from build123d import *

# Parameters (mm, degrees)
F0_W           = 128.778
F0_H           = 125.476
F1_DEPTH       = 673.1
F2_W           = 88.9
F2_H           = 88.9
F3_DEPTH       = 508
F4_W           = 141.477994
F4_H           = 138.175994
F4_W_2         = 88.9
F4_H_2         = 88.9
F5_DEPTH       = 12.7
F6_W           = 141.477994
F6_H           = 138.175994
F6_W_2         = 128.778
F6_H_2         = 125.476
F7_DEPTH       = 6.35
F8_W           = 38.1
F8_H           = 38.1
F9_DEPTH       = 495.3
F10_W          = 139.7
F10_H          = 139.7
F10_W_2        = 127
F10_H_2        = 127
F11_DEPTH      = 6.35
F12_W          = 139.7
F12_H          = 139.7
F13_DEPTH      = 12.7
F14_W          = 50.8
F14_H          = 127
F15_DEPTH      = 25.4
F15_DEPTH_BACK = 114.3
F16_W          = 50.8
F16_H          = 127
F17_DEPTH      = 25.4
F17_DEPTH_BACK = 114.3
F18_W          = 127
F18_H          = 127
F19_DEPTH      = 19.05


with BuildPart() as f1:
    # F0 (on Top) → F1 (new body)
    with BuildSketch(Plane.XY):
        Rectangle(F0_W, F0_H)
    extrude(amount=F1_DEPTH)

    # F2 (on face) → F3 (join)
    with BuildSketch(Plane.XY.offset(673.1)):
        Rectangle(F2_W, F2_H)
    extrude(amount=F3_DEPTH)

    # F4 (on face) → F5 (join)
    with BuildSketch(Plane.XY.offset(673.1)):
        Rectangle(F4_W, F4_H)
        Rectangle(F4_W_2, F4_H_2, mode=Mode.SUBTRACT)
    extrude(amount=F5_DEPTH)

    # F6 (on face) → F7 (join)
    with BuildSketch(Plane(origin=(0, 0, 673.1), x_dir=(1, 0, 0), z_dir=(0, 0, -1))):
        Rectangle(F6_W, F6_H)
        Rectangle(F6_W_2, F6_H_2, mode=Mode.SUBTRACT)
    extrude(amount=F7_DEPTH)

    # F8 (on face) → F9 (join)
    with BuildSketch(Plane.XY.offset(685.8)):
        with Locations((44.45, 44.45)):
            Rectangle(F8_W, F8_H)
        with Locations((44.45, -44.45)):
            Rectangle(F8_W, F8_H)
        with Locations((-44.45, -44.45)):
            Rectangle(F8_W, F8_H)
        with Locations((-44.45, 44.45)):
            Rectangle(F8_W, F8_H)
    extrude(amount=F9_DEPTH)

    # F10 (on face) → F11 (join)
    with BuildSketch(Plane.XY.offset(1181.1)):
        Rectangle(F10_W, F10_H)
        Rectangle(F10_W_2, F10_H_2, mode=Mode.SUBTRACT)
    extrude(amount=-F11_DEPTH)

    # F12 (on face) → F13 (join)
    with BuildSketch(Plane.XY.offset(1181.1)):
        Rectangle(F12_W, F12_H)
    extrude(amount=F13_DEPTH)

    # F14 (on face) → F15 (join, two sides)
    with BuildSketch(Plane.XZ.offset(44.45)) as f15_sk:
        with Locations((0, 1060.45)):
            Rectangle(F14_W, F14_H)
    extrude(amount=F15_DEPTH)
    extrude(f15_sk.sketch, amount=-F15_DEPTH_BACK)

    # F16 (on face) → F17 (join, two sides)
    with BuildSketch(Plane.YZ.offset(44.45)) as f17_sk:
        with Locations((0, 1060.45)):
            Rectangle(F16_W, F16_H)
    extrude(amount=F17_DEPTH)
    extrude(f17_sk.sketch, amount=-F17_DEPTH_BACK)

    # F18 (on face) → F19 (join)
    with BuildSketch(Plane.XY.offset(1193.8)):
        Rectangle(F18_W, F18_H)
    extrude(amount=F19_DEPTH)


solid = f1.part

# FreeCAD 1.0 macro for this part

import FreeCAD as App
import Part
import Sketcher
Q = App.Units.Quantity

doc = App.newDocument("Part")
body = doc.addObject("PartDesign::Body", "Body")

# Sketch on XY plane
sketch1 = body.newObject("Sketcher::SketchObject", "Sketch")
sketch1.AttachmentSupport = (doc.getObject("XY_Plane"), [""])
sketch1.MapMode = "FlatFace"
sketch1.addGeometry([
    Part.LineSegment(App.Vector(-64, 63, 0), App.Vector(-64, -63, 0)),
    Part.LineSegment(App.Vector(-64, -63, 0), App.Vector(64, -63, 0)),
    Part.LineSegment(App.Vector(64, -63, 0), App.Vector(64, 63, 0)),
    Part.LineSegment(App.Vector(64, 63, 0), App.Vector(-64, 63, 0)),
], False)
sketch1.addConstraint([
    Sketcher.Constraint("Coincident", 0, 2, 1, 1),
    Sketcher.Constraint("Coincident", 1, 2, 2, 1),
    Sketcher.Constraint("Coincident", 2, 2, 3, 1),
    Sketcher.Constraint("Coincident", 3, 2, 0, 1),
    Sketcher.Constraint("Vertical", 0),
    Sketcher.Constraint("Horizontal", 1),
    Sketcher.Constraint("Vertical", 2),
    Sketcher.Constraint("Horizontal", 3),
    Sketcher.Constraint("Symmetric", 0, 2, 2, 2, -1, 1),
    Sketcher.Constraint("DistanceX", 1, 1, 1, 2, Q("5.07 in")),
    Sketcher.Constraint("DistanceY", 0, 2, 0, 1, Q("4.94 in")),
])
pad1 = body.newObject("PartDesign::Pad", "Pad")
pad1.Profile = sketch1
pad1.Length = Q("26.5 in")

# Sketch on XY plane
sketch2 = body.newObject("Sketcher::SketchObject", "Sketch001")
sketch2.AttachmentSupport = (doc.getObject("XY_Plane"), [""])
sketch2.MapMode = "FlatFace"
sketch2.AttachmentOffset = App.Placement(App.Vector(0, 0, 26.5 * 25.4), App.Rotation())
sketch2.addGeometry([
    Part.LineSegment(App.Vector(-44, 44, 0), App.Vector(-44, -44, 0)),
    Part.LineSegment(App.Vector(-44, -44, 0), App.Vector(44, -44, 0)),
    Part.LineSegment(App.Vector(44, -44, 0), App.Vector(44, 44, 0)),
    Part.LineSegment(App.Vector(44, 44, 0), App.Vector(-44, 44, 0)),
], False)
sketch2.addConstraint([
    Sketcher.Constraint("Coincident", 0, 2, 1, 1),
    Sketcher.Constraint("Coincident", 1, 2, 2, 1),
    Sketcher.Constraint("Coincident", 2, 2, 3, 1),
    Sketcher.Constraint("Coincident", 3, 2, 0, 1),
    Sketcher.Constraint("Vertical", 0),
    Sketcher.Constraint("Horizontal", 1),
    Sketcher.Constraint("Vertical", 2),
    Sketcher.Constraint("Horizontal", 3),
    Sketcher.Constraint("Symmetric", 0, 2, 2, 2, -1, 1),
    Sketcher.Constraint("Equal", 3, 0),
    Sketcher.Constraint("DistanceX", 1, 1, 1, 2, Q("3.5 in")),
])
pad2 = body.newObject("PartDesign::Pad", "Pad001")
pad2.Profile = sketch2
pad2.Length = Q("20 in")

# Sketch on XY plane
sketch3 = body.newObject("Sketcher::SketchObject", "Sketch002")
sketch3.AttachmentSupport = (doc.getObject("XY_Plane"), [""])
sketch3.MapMode = "FlatFace"
sketch3.AttachmentOffset = App.Placement(App.Vector(0, 0, 26.5 * 25.4), App.Rotation())
sketch3.addGeometry([
    Part.LineSegment(App.Vector(-71, 69, 0), App.Vector(-71, -69, 0)),  # 0
    Part.LineSegment(App.Vector(-71, -69, 0), App.Vector(71, -69, 0)),  # 1
    Part.LineSegment(App.Vector(71, -69, 0), App.Vector(71, 69, 0)),  # 2
    Part.LineSegment(App.Vector(71, 69, 0), App.Vector(-71, 69, 0)),  # 3
    Part.LineSegment(App.Vector(44, -44, 0), App.Vector(-44, -44, 0)),  # 4
    Part.LineSegment(App.Vector(-44, -44, 0), App.Vector(-44, 44, 0)),  # 5
    Part.LineSegment(App.Vector(-44, 44, 0), App.Vector(44, 44, 0)),  # 6
    Part.LineSegment(App.Vector(44, 44, 0), App.Vector(44, -44, 0)),  # 7
], False)
sketch3.addConstraint([
    Sketcher.Constraint("Coincident", 0, 2, 1, 1),
    Sketcher.Constraint("Coincident", 1, 2, 2, 1),
    Sketcher.Constraint("Coincident", 2, 2, 3, 1),
    Sketcher.Constraint("Coincident", 3, 2, 0, 1),
    Sketcher.Constraint("Coincident", 4, 2, 5, 1),
    Sketcher.Constraint("Coincident", 5, 2, 6, 1),
    Sketcher.Constraint("Coincident", 6, 2, 7, 1),
    Sketcher.Constraint("Coincident", 7, 2, 4, 1),
    Sketcher.Constraint("Vertical", 0),
    Sketcher.Constraint("Horizontal", 1),
    Sketcher.Constraint("Vertical", 2),
    Sketcher.Constraint("Horizontal", 3),
    Sketcher.Constraint("Horizontal", 4),
    Sketcher.Constraint("Vertical", 5),
    Sketcher.Constraint("Horizontal", 6),
    Sketcher.Constraint("Vertical", 7),
    Sketcher.Constraint("Symmetric", 0, 2, 2, 2, -1, 1),
    Sketcher.Constraint("Symmetric", 4, 2, 6, 2, -1, 1),
    Sketcher.Constraint("Equal", 6, 5),
    Sketcher.Constraint("DistanceX", 4, 2, 4, 1, Q("3.5 in")),
    Sketcher.Constraint("DistanceY", 0, 2, -1, 1, Q("2.7199999 in")),
    Sketcher.Constraint("DistanceX", 0, 2, -1, 1, Q("2.7849999 in")),
])
pad3 = body.newObject("PartDesign::Pad", "Pad002")
pad3.Profile = sketch3
pad3.Length = Q("0.5 in")

# Sketch on XY plane
sketch4 = body.newObject("Sketcher::SketchObject", "Sketch003")
sketch4.AttachmentSupport = (doc.getObject("XY_Plane"), [""])
sketch4.MapMode = "FlatFace"
sketch4.AttachmentOffset = App.Placement(App.Vector(0, 0, 26.5 * 25.4), App.Rotation())
sketch4.addGeometry([
    Part.LineSegment(App.Vector(-71, -69, 0), App.Vector(-71, 69, 0)),  # 0
    Part.LineSegment(App.Vector(-71, 69, 0), App.Vector(71, 69, 0)),  # 1
    Part.LineSegment(App.Vector(71, 69, 0), App.Vector(71, -69, 0)),  # 2
    Part.LineSegment(App.Vector(71, -69, 0), App.Vector(-71, -69, 0)),  # 3
    Part.LineSegment(App.Vector(64, 63, 0), App.Vector(-64, 63, 0)),  # 4
    Part.LineSegment(App.Vector(-64, 63, 0), App.Vector(-64, -63, 0)),  # 5
    Part.LineSegment(App.Vector(-64, -63, 0), App.Vector(64, -63, 0)),  # 6
    Part.LineSegment(App.Vector(64, -63, 0), App.Vector(64, 63, 0)),  # 7
], False)
sketch4.addConstraint([
    Sketcher.Constraint("Coincident", 0, 2, 1, 1),
    Sketcher.Constraint("Coincident", 1, 2, 2, 1),
    Sketcher.Constraint("Coincident", 2, 2, 3, 1),
    Sketcher.Constraint("Coincident", 3, 2, 0, 1),
    Sketcher.Constraint("Coincident", 4, 2, 5, 1),
    Sketcher.Constraint("Coincident", 5, 2, 6, 1),
    Sketcher.Constraint("Coincident", 6, 2, 7, 1),
    Sketcher.Constraint("Coincident", 7, 2, 4, 1),
    Sketcher.Constraint("Vertical", 0),
    Sketcher.Constraint("Horizontal", 1),
    Sketcher.Constraint("Vertical", 2),
    Sketcher.Constraint("Horizontal", 3),
    Sketcher.Constraint("Horizontal", 4),
    Sketcher.Constraint("Vertical", 5),
    Sketcher.Constraint("Horizontal", 6),
    Sketcher.Constraint("Vertical", 7),
    Sketcher.Constraint("Symmetric", 0, 2, 2, 2, -1, 1),
    Sketcher.Constraint("Symmetric", 4, 2, 6, 2, -1, 1),
    Sketcher.Constraint("DistanceX", 4, 2, 4, 1, Q("5.07 in")),
    Sketcher.Constraint("DistanceY", 5, 2, 5, 1, Q("4.94 in")),
    Sketcher.Constraint("DistanceY", -1, 1, 0, 2, Q("2.7199999 in")),
    Sketcher.Constraint("DistanceX", 0, 2, 4, 2, Q("0.2499999 in")),
])
pad4 = body.newObject("PartDesign::Pad", "Pad003")
pad4.Profile = sketch4
pad4.Length = Q("0.25 in")
pad4.Reversed = True

# Sketch on XY plane
sketch5 = body.newObject("Sketcher::SketchObject", "Sketch004")
sketch5.AttachmentSupport = (doc.getObject("XY_Plane"), [""])
sketch5.MapMode = "FlatFace"
sketch5.AttachmentOffset = App.Placement(App.Vector(0, 0, 27 * 25.4), App.Rotation())
sketch5.addGeometry([
    Part.LineSegment(App.Vector(25, 64, 0), App.Vector(25, 25, 0)),  # 0
    Part.LineSegment(App.Vector(25, 25, 0), App.Vector(64, 25, 0)),  # 1
    Part.LineSegment(App.Vector(64, 25, 0), App.Vector(64, 64, 0)),  # 2
    Part.LineSegment(App.Vector(64, 64, 0), App.Vector(25, 64, 0)),  # 3
    Part.LineSegment(App.Vector(25, -25, 0), App.Vector(25, -64, 0)),  # 4
    Part.LineSegment(App.Vector(25, -64, 0), App.Vector(64, -64, 0)),  # 5
    Part.LineSegment(App.Vector(64, -64, 0), App.Vector(64, -25, 0)),  # 6
    Part.LineSegment(App.Vector(64, -25, 0), App.Vector(25, -25, 0)),  # 7
    Part.LineSegment(App.Vector(-64, -25, 0), App.Vector(-64, -64, 0)),  # 8
    Part.LineSegment(App.Vector(-64, -64, 0), App.Vector(-25, -64, 0)),  # 9
    Part.LineSegment(App.Vector(-25, -64, 0), App.Vector(-25, -25, 0)),  # 10
    Part.LineSegment(App.Vector(-25, -25, 0), App.Vector(-64, -25, 0)),  # 11
    Part.LineSegment(App.Vector(-64, 64, 0), App.Vector(-64, 25, 0)),  # 12
    Part.LineSegment(App.Vector(-64, 25, 0), App.Vector(-25, 25, 0)),  # 13
    Part.LineSegment(App.Vector(-25, 25, 0), App.Vector(-25, 64, 0)),  # 14
    Part.LineSegment(App.Vector(-25, 64, 0), App.Vector(-64, 64, 0)),  # 15
], False)
sketch5.addConstraint([
    Sketcher.Constraint("Coincident", 0, 2, 1, 1),
    Sketcher.Constraint("Coincident", 1, 2, 2, 1),
    Sketcher.Constraint("Coincident", 2, 2, 3, 1),
    Sketcher.Constraint("Coincident", 3, 2, 0, 1),
    Sketcher.Constraint("Coincident", 4, 2, 5, 1),
    Sketcher.Constraint("Coincident", 5, 2, 6, 1),
    Sketcher.Constraint("Coincident", 6, 2, 7, 1),
    Sketcher.Constraint("Coincident", 7, 2, 4, 1),
    Sketcher.Constraint("Coincident", 8, 2, 9, 1),
    Sketcher.Constraint("Coincident", 9, 2, 10, 1),
    Sketcher.Constraint("Coincident", 10, 2, 11, 1),
    Sketcher.Constraint("Coincident", 11, 2, 8, 1),
    Sketcher.Constraint("Coincident", 12, 2, 13, 1),
    Sketcher.Constraint("Coincident", 13, 2, 14, 1),
    Sketcher.Constraint("Coincident", 14, 2, 15, 1),
    Sketcher.Constraint("Coincident", 15, 2, 12, 1),
    Sketcher.Constraint("Vertical", 0),
    Sketcher.Constraint("Horizontal", 1),
    Sketcher.Constraint("Vertical", 2),
    Sketcher.Constraint("Horizontal", 3),
    Sketcher.Constraint("Vertical", 4),
    Sketcher.Constraint("Horizontal", 5),
    Sketcher.Constraint("Vertical", 6),
    Sketcher.Constraint("Horizontal", 7),
    Sketcher.Constraint("Vertical", 8),
    Sketcher.Constraint("Horizontal", 9),
    Sketcher.Constraint("Vertical", 10),
    Sketcher.Constraint("Horizontal", 11),
    Sketcher.Constraint("Vertical", 12),
    Sketcher.Constraint("Horizontal", 13),
    Sketcher.Constraint("Vertical", 14),
    Sketcher.Constraint("Horizontal", 15),
    Sketcher.Constraint("Symmetric", 2, 2, 8, 2, -1, 1),
    Sketcher.Constraint("Symmetric", 0, 2, 10, 2, -1, 1),
    Sketcher.Constraint("Symmetric", 6, 2, 12, 2, -1, 1),
    Sketcher.Constraint("Symmetric", 4, 2, 14, 2, -1, 1),
    Sketcher.Constraint("Symmetric", 5, 2, 8, 2, -2),
    Sketcher.Constraint("Symmetric", 7, 2, 10, 2, -2),
    Sketcher.Constraint("Equal", 15, 0),
    Sketcher.Constraint("DistanceX", 1, 1, 1, 2, Q("1.5 in")),
    Sketcher.Constraint("DistanceX", -1, 1, 0, 2, Q("1 in")),
    Sketcher.Constraint("DistanceY", -1, 1, 0, 2, Q("1 in")),
])
pad5 = body.newObject("PartDesign::Pad", "Pad004")
pad5.Profile = sketch5
pad5.Length = Q("19.5 in")

# Sketch on XY plane
sketch6 = body.newObject("Sketcher::SketchObject", "Sketch005")
sketch6.AttachmentSupport = (doc.getObject("XY_Plane"), [""])
sketch6.MapMode = "FlatFace"
sketch6.AttachmentOffset = App.Placement(App.Vector(0, 0, 46.5 * 25.4), App.Rotation())
sketch6.addGeometry([
    Part.LineSegment(App.Vector(-70, 70, 0), App.Vector(-70, -70, 0)),  # 0
    Part.LineSegment(App.Vector(-70, -70, 0), App.Vector(70, -70, 0)),  # 1
    Part.LineSegment(App.Vector(70, -70, 0), App.Vector(70, 70, 0)),  # 2
    Part.LineSegment(App.Vector(70, 70, 0), App.Vector(-70, 70, 0)),  # 3
    Part.LineSegment(App.Vector(64, -64, 0), App.Vector(-64, -64, 0)),  # 4
    Part.LineSegment(App.Vector(-64, -64, 0), App.Vector(-64, 64, 0)),  # 5
    Part.LineSegment(App.Vector(-64, 64, 0), App.Vector(64, 64, 0)),  # 6
    Part.LineSegment(App.Vector(64, 64, 0), App.Vector(64, -64, 0)),  # 7
], False)
sketch6.addConstraint([
    Sketcher.Constraint("Coincident", 0, 2, 1, 1),
    Sketcher.Constraint("Coincident", 1, 2, 2, 1),
    Sketcher.Constraint("Coincident", 2, 2, 3, 1),
    Sketcher.Constraint("Coincident", 3, 2, 0, 1),
    Sketcher.Constraint("Coincident", 4, 2, 5, 1),
    Sketcher.Constraint("Coincident", 5, 2, 6, 1),
    Sketcher.Constraint("Coincident", 6, 2, 7, 1),
    Sketcher.Constraint("Coincident", 7, 2, 4, 1),
    Sketcher.Constraint("Vertical", 0),
    Sketcher.Constraint("Horizontal", 1),
    Sketcher.Constraint("Vertical", 2),
    Sketcher.Constraint("Horizontal", 3),
    Sketcher.Constraint("Horizontal", 4),
    Sketcher.Constraint("Vertical", 5),
    Sketcher.Constraint("Horizontal", 6),
    Sketcher.Constraint("Vertical", 7),
    Sketcher.Constraint("Symmetric", 0, 2, 2, 2, -1, 1),
    Sketcher.Constraint("Symmetric", 4, 2, 6, 2, -1, 1),
    Sketcher.Constraint("Equal", 3, 0),
    Sketcher.Constraint("Equal", 6, 5),
    Sketcher.Constraint("DistanceX", 4, 2, 4, 1, Q("5 in")),
    Sketcher.Constraint("DistanceX", 1, 1, 1, 2, Q("5.5 in")),
])
pad6 = body.newObject("PartDesign::Pad", "Pad005")
pad6.Profile = sketch6
pad6.Length = Q("0.25 in")
pad6.Reversed = True

# Sketch on XY plane
sketch7 = body.newObject("Sketcher::SketchObject", "Sketch006")
sketch7.AttachmentSupport = (doc.getObject("XY_Plane"), [""])
sketch7.MapMode = "FlatFace"
sketch7.AttachmentOffset = App.Placement(App.Vector(0, 0, 46.5 * 25.4), App.Rotation())
sketch7.addGeometry([
    Part.LineSegment(App.Vector(-70, 70, 0), App.Vector(-70, -70, 0)),
    Part.LineSegment(App.Vector(-70, -70, 0), App.Vector(70, -70, 0)),
    Part.LineSegment(App.Vector(70, -70, 0), App.Vector(70, 70, 0)),
    Part.LineSegment(App.Vector(70, 70, 0), App.Vector(-70, 70, 0)),
], False)
sketch7.addConstraint([
    Sketcher.Constraint("Coincident", 0, 2, 1, 1),
    Sketcher.Constraint("Coincident", 1, 2, 2, 1),
    Sketcher.Constraint("Coincident", 2, 2, 3, 1),
    Sketcher.Constraint("Coincident", 3, 2, 0, 1),
    Sketcher.Constraint("Vertical", 0),
    Sketcher.Constraint("Horizontal", 1),
    Sketcher.Constraint("Vertical", 2),
    Sketcher.Constraint("Horizontal", 3),
    Sketcher.Constraint("Symmetric", 0, 2, 2, 2, -1, 1),
    Sketcher.Constraint("Equal", 3, 0),
    Sketcher.Constraint("DistanceX", 1, 1, 1, 2, Q("5.5 in")),
])
pad7 = body.newObject("PartDesign::Pad", "Pad006")
pad7.Profile = sketch7
pad7.Length = Q("0.5 in")

# Sketch on XZ plane
sketch8 = body.newObject("Sketcher::SketchObject", "Sketch007")
sketch8.AttachmentSupport = (doc.getObject("XZ_Plane"), [""])
sketch8.MapMode = "FlatFace"
sketch8.AttachmentOffset = App.Placement(App.Vector(0, 0, 1.75 * 25.4), App.Rotation())
sketch8.addGeometry([
    Part.LineSegment(App.Vector(-25, 1124, 0), App.Vector(-25, 997, 0)),
    Part.LineSegment(App.Vector(-25, 997, 0), App.Vector(25, 997, 0)),
    Part.LineSegment(App.Vector(25, 997, 0), App.Vector(25, 1124, 0)),
    Part.LineSegment(App.Vector(25, 1124, 0), App.Vector(-25, 1124, 0)),
], False)
sketch8.addConstraint([
    Sketcher.Constraint("Coincident", 0, 2, 1, 1),
    Sketcher.Constraint("Coincident", 1, 2, 2, 1),
    Sketcher.Constraint("Coincident", 2, 2, 3, 1),
    Sketcher.Constraint("Coincident", 3, 2, 0, 1),
    Sketcher.Constraint("Vertical", 0),
    Sketcher.Constraint("Horizontal", 1),
    Sketcher.Constraint("Vertical", 2),
    Sketcher.Constraint("Horizontal", 3),
    Sketcher.Constraint("DistanceX", 1, 1, 1, 2, Q("2 in")),
    Sketcher.Constraint("DistanceY", 0, 2, 0, 1, Q("5 in")),
    Sketcher.Constraint("DistanceX", 0, 2, -1, 1, Q("1 in")),
    Sketcher.Constraint("DistanceY", -1, 1, 0, 2, Q("39.25 in")),
])
pad8 = body.newObject("PartDesign::Pad", "Pad007")
pad8.Profile = sketch8
pad8.Type = "TwoLengths"
pad8.Length = Q("1 in")
pad8.Length2 = Q("4.5 in")

# Sketch on YZ plane
sketch9 = body.newObject("Sketcher::SketchObject", "Sketch008")
sketch9.AttachmentSupport = (doc.getObject("YZ_Plane"), [""])
sketch9.MapMode = "FlatFace"
sketch9.AttachmentOffset = App.Placement(App.Vector(0, 0, 1.75 * 25.4), App.Rotation())
sketch9.addGeometry([
    Part.LineSegment(App.Vector(-25, 1124, 0), App.Vector(-25, 997, 0)),
    Part.LineSegment(App.Vector(-25, 997, 0), App.Vector(25, 997, 0)),
    Part.LineSegment(App.Vector(25, 997, 0), App.Vector(25, 1124, 0)),
    Part.LineSegment(App.Vector(25, 1124, 0), App.Vector(-25, 1124, 0)),
], False)
sketch9.addConstraint([
    Sketcher.Constraint("Coincident", 0, 2, 1, 1),
    Sketcher.Constraint("Coincident", 1, 2, 2, 1),
    Sketcher.Constraint("Coincident", 2, 2, 3, 1),
    Sketcher.Constraint("Coincident", 3, 2, 0, 1),
    Sketcher.Constraint("Vertical", 0),
    Sketcher.Constraint("Horizontal", 1),
    Sketcher.Constraint("Vertical", 2),
    Sketcher.Constraint("Horizontal", 3),
    Sketcher.Constraint("DistanceX", 1, 1, 1, 2, Q("2 in")),
    Sketcher.Constraint("DistanceY", 0, 2, 0, 1, Q("5 in")),
    Sketcher.Constraint("DistanceX", 0, 2, -1, 1, Q("1 in")),
    Sketcher.Constraint("DistanceY", -1, 1, 0, 2, Q("39.25 in")),
])
pad9 = body.newObject("PartDesign::Pad", "Pad008")
pad9.Profile = sketch9
pad9.Type = "TwoLengths"
pad9.Length = Q("1 in")
pad9.Length2 = Q("4.5 in")

# Sketch on XY plane
sketch10 = body.newObject("Sketcher::SketchObject", "Sketch009")
sketch10.AttachmentSupport = (doc.getObject("XY_Plane"), [""])
sketch10.MapMode = "FlatFace"
sketch10.AttachmentOffset = App.Placement(App.Vector(0, 0, 47 * 25.4), App.Rotation())
sketch10.addGeometry([
    Part.LineSegment(App.Vector(-64, 64, 0), App.Vector(-64, -64, 0)),
    Part.LineSegment(App.Vector(-64, -64, 0), App.Vector(64, -64, 0)),
    Part.LineSegment(App.Vector(64, -64, 0), App.Vector(64, 64, 0)),
    Part.LineSegment(App.Vector(64, 64, 0), App.Vector(-64, 64, 0)),
], False)
sketch10.addConstraint([
    Sketcher.Constraint("Coincident", 0, 2, 1, 1),
    Sketcher.Constraint("Coincident", 1, 2, 2, 1),
    Sketcher.Constraint("Coincident", 2, 2, 3, 1),
    Sketcher.Constraint("Coincident", 3, 2, 0, 1),
    Sketcher.Constraint("Vertical", 0),
    Sketcher.Constraint("Horizontal", 1),
    Sketcher.Constraint("Vertical", 2),
    Sketcher.Constraint("Horizontal", 3),
    Sketcher.Constraint("Symmetric", 0, 2, 2, 2, -1, 1),
    Sketcher.Constraint("Equal", 3, 0),
    Sketcher.Constraint("DistanceX", 1, 1, 1, 2, Q("5 in")),
])
pad10 = body.newObject("PartDesign::Pad", "Pad009")
pad10.Profile = sketch10
pad10.Length = Q("0.75 in")

doc.recompute()
